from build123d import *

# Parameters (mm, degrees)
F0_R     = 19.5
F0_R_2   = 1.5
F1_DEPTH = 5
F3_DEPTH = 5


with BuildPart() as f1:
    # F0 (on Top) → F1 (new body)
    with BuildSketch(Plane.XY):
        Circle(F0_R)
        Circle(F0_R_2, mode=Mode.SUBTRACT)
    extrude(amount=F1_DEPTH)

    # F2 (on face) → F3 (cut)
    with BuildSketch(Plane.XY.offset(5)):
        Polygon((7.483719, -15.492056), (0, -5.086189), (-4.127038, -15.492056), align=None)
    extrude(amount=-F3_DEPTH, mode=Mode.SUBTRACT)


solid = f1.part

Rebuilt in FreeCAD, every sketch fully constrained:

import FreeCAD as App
import Part
import Sketcher


def add_polygon(sketch, points):
    """Adds a closed chain of lines whose ends are joined by coincident constraints."""
    first, n = sketch.GeometryCount, len(points)
    for a, b in zip(points, points[1:] + points[:1]):
        sketch.addGeometry(Part.LineSegment(App.Vector(*a, 0), App.Vector(*b, 0)), False)
    for i in range(n):
        sketch.addConstraint(Sketcher.Constraint("Coincident", first + i, 2, first + (i + 1) % n, 1))

doc = App.newDocument("Part")
body = doc.addObject("PartDesign::Body", "Body")

# Sketch on XY plane
sketch1 = body.newObject("Sketcher::SketchObject", "Sketch")
sketch1.AttachmentSupport = (doc.getObject("XY_Plane"), [""])
sketch1.MapMode = "FlatFace"
sketch1.addGeometry([
    Part.Circle(App.Vector(0, 0, 0), App.Vector(0, 0, 1), 19.5),
    Part.Circle(App.Vector(0, 0, 0), App.Vector(0, 0, 1), 1.5),
], False)
sketch1.addConstraint([
    Sketcher.Constraint("Coincident", 0, 3, -1, 1),
    Sketcher.Constraint("Coincident", 1, 3, -1, 1),
    Sketcher.Constraint("Diameter", 0, 39.0),
    Sketcher.Constraint("Diameter", 1, 3.0),
])
pad1 = body.newObject("PartDesign::Pad", "Pad")
pad1.Profile = sketch1
pad1.Length = 5

# Sketch on XY plane
sketch2 = body.newObject("Sketcher::SketchObject", "Sketch001")
sketch2.AttachmentSupport = (doc.getObject("XY_Plane"), [""])
sketch2.MapMode = "FlatFace"
sketch2.AttachmentOffset = App.Placement(App.Vector(0, 0, 5), App.Rotation())
add_polygon(sketch2, [(7, -15), (0, -5), (-4, -15)])  # lines 0-2
sketch2.addConstraint([
    Sketcher.Constraint("Horizontal", 2),
    Sketcher.Constraint("PointOnObject", 0, 2, -2),
    Sketcher.Constraint("DistanceX", 2, 1, 2, 2, 11.610757),
    Sketcher.Constraint("DistanceY", 0, 2, -1, 1, 5.086189),
    Sketcher.Constraint("DistanceX", -1, 1, 2, 2, 7.483719),
    Sketcher.Constraint("Distance", 0, 12.817493),
])
pocket1 = body.newObject("PartDesign::Pocket", "Pocket")
pocket1.Profile = sketch2
pocket1.Length = 5

doc.recompute()
